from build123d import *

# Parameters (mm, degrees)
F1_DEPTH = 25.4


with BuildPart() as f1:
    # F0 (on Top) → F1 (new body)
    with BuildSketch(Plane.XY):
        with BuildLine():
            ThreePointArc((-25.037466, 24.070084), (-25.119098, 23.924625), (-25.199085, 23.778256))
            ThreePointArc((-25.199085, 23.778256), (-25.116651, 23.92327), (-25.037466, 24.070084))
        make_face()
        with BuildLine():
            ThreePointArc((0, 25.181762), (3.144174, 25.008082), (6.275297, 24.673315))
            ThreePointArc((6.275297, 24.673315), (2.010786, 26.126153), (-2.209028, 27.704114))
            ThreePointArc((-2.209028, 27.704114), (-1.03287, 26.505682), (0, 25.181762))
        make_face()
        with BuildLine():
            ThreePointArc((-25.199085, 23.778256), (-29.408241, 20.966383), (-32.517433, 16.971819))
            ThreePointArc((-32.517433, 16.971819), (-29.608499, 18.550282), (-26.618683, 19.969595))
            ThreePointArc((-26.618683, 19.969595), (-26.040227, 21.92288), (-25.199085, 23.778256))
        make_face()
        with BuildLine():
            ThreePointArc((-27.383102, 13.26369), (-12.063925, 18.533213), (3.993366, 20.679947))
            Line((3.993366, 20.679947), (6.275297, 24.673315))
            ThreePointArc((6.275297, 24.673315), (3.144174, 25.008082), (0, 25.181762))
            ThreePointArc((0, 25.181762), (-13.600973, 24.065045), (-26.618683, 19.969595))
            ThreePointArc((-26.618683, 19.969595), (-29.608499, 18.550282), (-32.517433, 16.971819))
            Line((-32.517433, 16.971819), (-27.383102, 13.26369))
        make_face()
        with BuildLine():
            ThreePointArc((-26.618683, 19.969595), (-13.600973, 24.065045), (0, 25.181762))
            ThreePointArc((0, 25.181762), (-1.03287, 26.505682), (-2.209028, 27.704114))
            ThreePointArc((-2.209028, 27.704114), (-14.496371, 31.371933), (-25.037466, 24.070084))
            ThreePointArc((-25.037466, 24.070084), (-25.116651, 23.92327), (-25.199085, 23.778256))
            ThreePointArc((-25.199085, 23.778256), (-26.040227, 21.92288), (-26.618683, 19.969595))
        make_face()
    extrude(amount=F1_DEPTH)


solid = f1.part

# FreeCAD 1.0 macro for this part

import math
import FreeCAD as App
import Part
import Sketcher
from FreeCAD import Vector
Q = App.Units.Quantity

doc = App.newDocument("Part")
body = doc.addObject("PartDesign::Body", "Body")

sketch1 = doc.addObject("Sketcher::SketchObject", "Sketch")
body.addObject(sketch1)
sketch1.AttachmentSupport = (doc.XY_Plane, [""])
sketch1.MapMode = "FlatFace"
sketch1.addGeometry([
    Part.ArcOfCircle(Part.Circle(Vector(-12.17, 16.75, 0), Vector(0, 0, 1), 14.8), math.radians(150.38), math.radians(151.67)),
    Part.ArcOfCircle(Part.Circle(Vector(-18.6, 9.35, 0), Vector(0, 0, 1), 15.86), math.radians(115), math.radians(151)),
    Part.LineSegment(Vector(-32.52, 16.97, 0), Vector(-27.38, 13.26, 0)),
    Part.ArcOfCircle(Part.Circle(Vector(6.75, -61.06, 0), Vector(0, 0, 1), 81.79), math.radians(92), math.radians(115)),
    Part.LineSegment(Vector(3.99, 20.68, 0), Vector(6.28, 24.67, 0)),
    Part.ArcOfCircle(Part.Circle(Vector(53.4, 169.98, 0), Vector(0, 0, 1), 152.76), math.radians(-111.35), math.radians(-107.97)),
    Part.ArcOfCircle(Part.Circle(Vector(-12.17, 16.75, 0), Vector(0, 0, 1), 14.8), math.radians(48), math.radians(150)),
], False)
sketch1.addConstraint([
    Sketcher.Constraint("Coincident", 0, 2, 1, 1),
    Sketcher.Constraint("Coincident", 1, 2, 2, 1),
    Sketcher.Constraint("Coincident", 2, 2, 3, 2),
    Sketcher.Constraint("Coincident", 3, 1, 4, 1),
    Sketcher.Constraint("Coincident", 4, 2, 5, 2),
    Sketcher.Constraint("Coincident", 5, 1, 6, 1),
    Sketcher.Constraint("Coincident", 6, 2, 0, 1),
    Sketcher.Constraint("Radius", 0, Q("14.799489 mm")),
    Sketcher.Constraint("Radius", 1, Q("15.864639 mm")),
    Sketcher.Constraint("Radius", 3, Q("81.788263 mm")),
    Sketcher.Constraint("Radius", 5, Q("152.760445 mm")),
    Sketcher.Constraint("Radius", 6, Q("14.803277 mm")),
    Sketcher.Constraint("DistanceY", -1, 1, 5, 3, Q("169.983398 mm")),
    Sketcher.Constraint("DistanceX", 2, 2, 1, 3, Q("8.779199 mm")),
    Sketcher.Constraint("DistanceX", 1, 3, 4, 2, Q("24.8792 mm")),
    Sketcher.Constraint("DistanceY", 4, 2, 5, 1, Q("3.030799 mm")),
    Sketcher.Constraint("DistanceX", 6, 2, 0, 3, Q("12.864999 mm")),
    Sketcher.Constraint("Distance", 2, Q("6.33337 mm")),
    Sketcher.Constraint("Distance", 4, Q("4.599369 mm")),
    Sketcher.Constraint("DistanceX", -1, 1, 3, 3, Q("6.74946 mm")),
    Sketcher.Constraint("DistanceX", 6, 3, -1, 1, Q("12.169158 mm")),
    Sketcher.Constraint("DistanceY", -1, 1, 6, 3, Q("16.75273 mm")),
    Sketcher.Constraint("DistanceY", -1, 1, 1, 2, Q("16.971819 mm")),
    Sketcher.Constraint("DistanceY", -1, 1, 2, 2, Q("13.26369 mm")),
    Sketcher.Constraint("DistanceY", 1, 3, 0, 3, Q("7.405121 mm")),
    Sketcher.Constraint("DistanceY", 3, 3, 1, 3, Q("70.411319 mm")),
])
pad1 = doc.addObject("PartDesign::Pad", "Pad")
body.addObject(pad1)
pad1.Profile = sketch1
pad1.Length = Q("1 in")

doc.recompute()
